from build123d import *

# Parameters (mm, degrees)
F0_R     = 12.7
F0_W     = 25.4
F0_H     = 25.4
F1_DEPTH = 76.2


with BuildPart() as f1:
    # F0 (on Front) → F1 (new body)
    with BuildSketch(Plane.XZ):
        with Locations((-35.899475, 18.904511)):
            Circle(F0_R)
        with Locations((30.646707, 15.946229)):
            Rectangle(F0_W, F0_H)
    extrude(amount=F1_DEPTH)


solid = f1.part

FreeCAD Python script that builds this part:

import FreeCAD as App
import Part
import Sketcher
Q = App.Units.Quantity


def add_polygon(sketch, points):
    """Adds a closed chain of lines whose ends are joined by coincident constraints."""
    first, n = sketch.GeometryCount, len(points)
    for a, b in zip(points, points[1:] + points[:1]):
        sketch.addGeometry(Part.LineSegment(App.Vector(*a, 0), App.Vector(*b, 0)), False)
    for i in range(n):
        sketch.addConstraint(Sketcher.Constraint("Coincident", first + i, 2, first + (i + 1) % n, 1))

doc = App.newDocument("Part")
body = doc.addObject("PartDesign::Body", "Body")
body.AllowCompound = True

# Sketch on XZ plane
sketch1 = body.newObject("Sketcher::SketchObject", "Sketch")
sketch1.AttachmentSupport = (doc.getObject("XZ_Plane"), [""])
sketch1.MapMode = "FlatFace"
sketch1.addGeometry(Part.Circle(App.Vector(-35.899475, 18.904511, 0), App.Vector(0, 0, 1), 12.7), False)  # 0
add_polygon(sketch1, [(17.946707, 28.646229), (17.946707, 3.246229), (43.346707, 3.246229), (43.346707, 28.646229)])  # lines 1-4
sketch1.addConstraint([
    Sketcher.Constraint("Vertical", 1),
    Sketcher.Constraint("Horizontal", 2),
    Sketcher.Constraint("Vertical", 3),
    Sketcher.Constraint("Horizontal", 4),
    Sketcher.Constraint("Equal", 4, 1),
    Sketcher.Constraint("Diameter", 0, Q("1 in")),
    Sketcher.Constraint("DistanceX", 2, 1, 2, 2, Q("1 in")),
    Sketcher.Constraint("DistanceY", -1, 1, 0, 3, 18.904511),
    Sketcher.Constraint("DistanceY", -1, 1, 1, 2, 3.246229),
    Sketcher.Constraint("DistanceX", 0, 3, -1, 1, 35.899475),
    Sketcher.Constraint("DistanceX", -1, 1, 1, 2, 17.946707),
])
pad1 = body.newObject("PartDesign::Pad", "Pad")
pad1.Profile = sketch1
pad1.Length = Q("3 in")

doc.recompute()
